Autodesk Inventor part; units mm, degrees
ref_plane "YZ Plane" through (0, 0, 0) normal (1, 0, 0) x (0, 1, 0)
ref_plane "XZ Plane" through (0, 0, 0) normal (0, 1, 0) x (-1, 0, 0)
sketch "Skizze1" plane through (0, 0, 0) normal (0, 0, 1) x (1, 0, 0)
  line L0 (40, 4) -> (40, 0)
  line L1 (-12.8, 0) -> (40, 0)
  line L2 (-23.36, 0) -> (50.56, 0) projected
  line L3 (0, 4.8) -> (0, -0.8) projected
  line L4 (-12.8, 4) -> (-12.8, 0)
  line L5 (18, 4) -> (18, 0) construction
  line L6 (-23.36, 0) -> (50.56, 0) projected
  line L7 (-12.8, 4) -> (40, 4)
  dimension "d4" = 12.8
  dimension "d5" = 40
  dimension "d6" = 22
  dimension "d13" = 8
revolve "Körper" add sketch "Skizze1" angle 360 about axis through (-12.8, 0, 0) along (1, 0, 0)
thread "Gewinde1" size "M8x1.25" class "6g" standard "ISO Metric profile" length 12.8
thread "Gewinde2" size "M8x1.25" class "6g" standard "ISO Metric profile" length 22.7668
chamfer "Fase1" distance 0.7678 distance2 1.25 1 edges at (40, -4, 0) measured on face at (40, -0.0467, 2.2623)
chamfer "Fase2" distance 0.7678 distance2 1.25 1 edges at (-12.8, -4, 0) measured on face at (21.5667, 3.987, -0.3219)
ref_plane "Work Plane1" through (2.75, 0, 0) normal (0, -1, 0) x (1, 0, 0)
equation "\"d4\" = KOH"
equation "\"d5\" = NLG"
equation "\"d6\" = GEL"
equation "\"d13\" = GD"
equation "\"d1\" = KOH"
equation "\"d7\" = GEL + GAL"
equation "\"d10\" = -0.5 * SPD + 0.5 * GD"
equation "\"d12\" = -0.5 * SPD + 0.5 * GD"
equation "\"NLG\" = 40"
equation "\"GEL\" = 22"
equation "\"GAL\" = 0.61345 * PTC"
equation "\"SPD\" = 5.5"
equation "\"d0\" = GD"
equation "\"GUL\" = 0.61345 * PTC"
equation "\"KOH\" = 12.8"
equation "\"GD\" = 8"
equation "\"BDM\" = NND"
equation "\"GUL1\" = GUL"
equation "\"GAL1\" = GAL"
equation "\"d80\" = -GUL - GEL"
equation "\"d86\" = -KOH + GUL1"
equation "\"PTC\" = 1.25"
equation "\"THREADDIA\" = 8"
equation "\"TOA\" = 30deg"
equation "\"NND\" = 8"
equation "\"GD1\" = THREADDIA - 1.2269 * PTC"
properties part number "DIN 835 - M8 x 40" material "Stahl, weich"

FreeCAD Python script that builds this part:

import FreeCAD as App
import Part
import Sketcher

V = App.Vector
Q = App.Units.Quantity


def edges_at(feature, points):
    """Names of the edges that pass closest to the given points."""
    edges = feature.Shape.Edges
    near = lambda p: min(range(len(edges)), key=lambda i: edges[i].distToShape(Part.Vertex(*p))[0])
    return sorted({f"Edge{near(p) + 1}" for p in points})

doc = App.newDocument("Part")
params = doc.addObject("Spreadsheet::Sheet", "Params")
for row, (alias, value) in enumerate([
    ("sketch1_height", "4 mm"),
    ("revolution_angle", "360 deg"),
    ("chamfer_size", "0.7678 mm"),
    ("chamfer_size2", "1.25 mm"),
    ("chamfer2_size", "0.7678 mm"),
    ("chamfer2_size2", "1.25 mm"),
], start=1):
    params.set(f"A{row}", alias)
    params.set(f"B{row}", "=" + value)
    params.setAlias(f"B{row}", alias)

body = doc.addObject("PartDesign::Body", "Body")

sketch1 = doc.addObject("Sketcher::SketchObject", "Sketch")
body.addObject(sketch1)
sketch1.AttachmentSupport = (doc.XY_Plane, [""])
sketch1.MapMode = "FlatFace"
sketch1.addGeometry(Part.LineSegment(V(40, 0, 0), V(40, 4, 0)), False)
sketch1.addGeometry(Part.LineSegment(V(40, 4, 0), V(-12.8, 4, 0)), False)
sketch1.addGeometry(Part.LineSegment(V(-12.8, 4, 0), V(-12.8, 0, 0)), False)
sketch1.addGeometry(Part.LineSegment(V(-12.8, 0, 0), V(40, 0, 0)), False)
sketch1.addConstraint(Sketcher.Constraint("Coincident", 0, 2, 1, 1))
sketch1.addConstraint(Sketcher.Constraint("Coincident", 1, 2, 2, 1))
sketch1.addConstraint(Sketcher.Constraint("Coincident", 2, 2, 3, 1))
sketch1.addConstraint(Sketcher.Constraint("Coincident", 3, 2, 0, 1))
sketch1.addConstraint(Sketcher.Constraint("Vertical", 0))
sketch1.addConstraint(Sketcher.Constraint("Horizontal", 1))
sketch1.addConstraint(Sketcher.Constraint("Vertical", 2))
sketch1.addConstraint(Sketcher.Constraint("Horizontal", 3))
sketch1.addConstraint(Sketcher.Constraint("PointOnObject", 2, 2, -1))
sketch1.addConstraint(Sketcher.Constraint("DistanceX", -1, 1, 0, 2, Q("40 mm")))
sketch1.addConstraint(Sketcher.Constraint("DistanceX", 1, 2, -1, 1, Q("12.8 mm")))
sketch1.addConstraint(Sketcher.Constraint("DistanceY", 0, 1, 0, 2, Q("4 mm")))
sketch1.setExpression("Constraints[11]", "Params.sketch1_height")
revolution = doc.addObject("PartDesign::Revolution", "Revolution")
body.addObject(revolution)
revolution.Profile = sketch1
revolution.ReferenceAxis = (sketch1, ["H_Axis"])
revolution.setExpression("Angle", "Params.revolution_angle")
doc.recompute()

chamfer = doc.addObject("PartDesign::Chamfer", "Chamfer")
body.addObject(chamfer)
chamfer.Base = (revolution, edges_at(revolution, [(40, -4, 0)]))
chamfer.ChamferType = "Two distances"
chamfer.setExpression("Size", "Params.chamfer_size")
chamfer.setExpression("Size2", "Params.chamfer_size2")
doc.recompute()

chamfer2 = doc.addObject("PartDesign::Chamfer", "Chamfer001")
body.addObject(chamfer2)
chamfer2.Base = (chamfer, edges_at(chamfer, [(-12.8, -4, 0)]))
chamfer2.ChamferType = "Two distances"
chamfer2.setExpression("Size", "Params.chamfer2_size")
chamfer2.setExpression("Size2", "Params.chamfer2_size2")

doc.recompute()
